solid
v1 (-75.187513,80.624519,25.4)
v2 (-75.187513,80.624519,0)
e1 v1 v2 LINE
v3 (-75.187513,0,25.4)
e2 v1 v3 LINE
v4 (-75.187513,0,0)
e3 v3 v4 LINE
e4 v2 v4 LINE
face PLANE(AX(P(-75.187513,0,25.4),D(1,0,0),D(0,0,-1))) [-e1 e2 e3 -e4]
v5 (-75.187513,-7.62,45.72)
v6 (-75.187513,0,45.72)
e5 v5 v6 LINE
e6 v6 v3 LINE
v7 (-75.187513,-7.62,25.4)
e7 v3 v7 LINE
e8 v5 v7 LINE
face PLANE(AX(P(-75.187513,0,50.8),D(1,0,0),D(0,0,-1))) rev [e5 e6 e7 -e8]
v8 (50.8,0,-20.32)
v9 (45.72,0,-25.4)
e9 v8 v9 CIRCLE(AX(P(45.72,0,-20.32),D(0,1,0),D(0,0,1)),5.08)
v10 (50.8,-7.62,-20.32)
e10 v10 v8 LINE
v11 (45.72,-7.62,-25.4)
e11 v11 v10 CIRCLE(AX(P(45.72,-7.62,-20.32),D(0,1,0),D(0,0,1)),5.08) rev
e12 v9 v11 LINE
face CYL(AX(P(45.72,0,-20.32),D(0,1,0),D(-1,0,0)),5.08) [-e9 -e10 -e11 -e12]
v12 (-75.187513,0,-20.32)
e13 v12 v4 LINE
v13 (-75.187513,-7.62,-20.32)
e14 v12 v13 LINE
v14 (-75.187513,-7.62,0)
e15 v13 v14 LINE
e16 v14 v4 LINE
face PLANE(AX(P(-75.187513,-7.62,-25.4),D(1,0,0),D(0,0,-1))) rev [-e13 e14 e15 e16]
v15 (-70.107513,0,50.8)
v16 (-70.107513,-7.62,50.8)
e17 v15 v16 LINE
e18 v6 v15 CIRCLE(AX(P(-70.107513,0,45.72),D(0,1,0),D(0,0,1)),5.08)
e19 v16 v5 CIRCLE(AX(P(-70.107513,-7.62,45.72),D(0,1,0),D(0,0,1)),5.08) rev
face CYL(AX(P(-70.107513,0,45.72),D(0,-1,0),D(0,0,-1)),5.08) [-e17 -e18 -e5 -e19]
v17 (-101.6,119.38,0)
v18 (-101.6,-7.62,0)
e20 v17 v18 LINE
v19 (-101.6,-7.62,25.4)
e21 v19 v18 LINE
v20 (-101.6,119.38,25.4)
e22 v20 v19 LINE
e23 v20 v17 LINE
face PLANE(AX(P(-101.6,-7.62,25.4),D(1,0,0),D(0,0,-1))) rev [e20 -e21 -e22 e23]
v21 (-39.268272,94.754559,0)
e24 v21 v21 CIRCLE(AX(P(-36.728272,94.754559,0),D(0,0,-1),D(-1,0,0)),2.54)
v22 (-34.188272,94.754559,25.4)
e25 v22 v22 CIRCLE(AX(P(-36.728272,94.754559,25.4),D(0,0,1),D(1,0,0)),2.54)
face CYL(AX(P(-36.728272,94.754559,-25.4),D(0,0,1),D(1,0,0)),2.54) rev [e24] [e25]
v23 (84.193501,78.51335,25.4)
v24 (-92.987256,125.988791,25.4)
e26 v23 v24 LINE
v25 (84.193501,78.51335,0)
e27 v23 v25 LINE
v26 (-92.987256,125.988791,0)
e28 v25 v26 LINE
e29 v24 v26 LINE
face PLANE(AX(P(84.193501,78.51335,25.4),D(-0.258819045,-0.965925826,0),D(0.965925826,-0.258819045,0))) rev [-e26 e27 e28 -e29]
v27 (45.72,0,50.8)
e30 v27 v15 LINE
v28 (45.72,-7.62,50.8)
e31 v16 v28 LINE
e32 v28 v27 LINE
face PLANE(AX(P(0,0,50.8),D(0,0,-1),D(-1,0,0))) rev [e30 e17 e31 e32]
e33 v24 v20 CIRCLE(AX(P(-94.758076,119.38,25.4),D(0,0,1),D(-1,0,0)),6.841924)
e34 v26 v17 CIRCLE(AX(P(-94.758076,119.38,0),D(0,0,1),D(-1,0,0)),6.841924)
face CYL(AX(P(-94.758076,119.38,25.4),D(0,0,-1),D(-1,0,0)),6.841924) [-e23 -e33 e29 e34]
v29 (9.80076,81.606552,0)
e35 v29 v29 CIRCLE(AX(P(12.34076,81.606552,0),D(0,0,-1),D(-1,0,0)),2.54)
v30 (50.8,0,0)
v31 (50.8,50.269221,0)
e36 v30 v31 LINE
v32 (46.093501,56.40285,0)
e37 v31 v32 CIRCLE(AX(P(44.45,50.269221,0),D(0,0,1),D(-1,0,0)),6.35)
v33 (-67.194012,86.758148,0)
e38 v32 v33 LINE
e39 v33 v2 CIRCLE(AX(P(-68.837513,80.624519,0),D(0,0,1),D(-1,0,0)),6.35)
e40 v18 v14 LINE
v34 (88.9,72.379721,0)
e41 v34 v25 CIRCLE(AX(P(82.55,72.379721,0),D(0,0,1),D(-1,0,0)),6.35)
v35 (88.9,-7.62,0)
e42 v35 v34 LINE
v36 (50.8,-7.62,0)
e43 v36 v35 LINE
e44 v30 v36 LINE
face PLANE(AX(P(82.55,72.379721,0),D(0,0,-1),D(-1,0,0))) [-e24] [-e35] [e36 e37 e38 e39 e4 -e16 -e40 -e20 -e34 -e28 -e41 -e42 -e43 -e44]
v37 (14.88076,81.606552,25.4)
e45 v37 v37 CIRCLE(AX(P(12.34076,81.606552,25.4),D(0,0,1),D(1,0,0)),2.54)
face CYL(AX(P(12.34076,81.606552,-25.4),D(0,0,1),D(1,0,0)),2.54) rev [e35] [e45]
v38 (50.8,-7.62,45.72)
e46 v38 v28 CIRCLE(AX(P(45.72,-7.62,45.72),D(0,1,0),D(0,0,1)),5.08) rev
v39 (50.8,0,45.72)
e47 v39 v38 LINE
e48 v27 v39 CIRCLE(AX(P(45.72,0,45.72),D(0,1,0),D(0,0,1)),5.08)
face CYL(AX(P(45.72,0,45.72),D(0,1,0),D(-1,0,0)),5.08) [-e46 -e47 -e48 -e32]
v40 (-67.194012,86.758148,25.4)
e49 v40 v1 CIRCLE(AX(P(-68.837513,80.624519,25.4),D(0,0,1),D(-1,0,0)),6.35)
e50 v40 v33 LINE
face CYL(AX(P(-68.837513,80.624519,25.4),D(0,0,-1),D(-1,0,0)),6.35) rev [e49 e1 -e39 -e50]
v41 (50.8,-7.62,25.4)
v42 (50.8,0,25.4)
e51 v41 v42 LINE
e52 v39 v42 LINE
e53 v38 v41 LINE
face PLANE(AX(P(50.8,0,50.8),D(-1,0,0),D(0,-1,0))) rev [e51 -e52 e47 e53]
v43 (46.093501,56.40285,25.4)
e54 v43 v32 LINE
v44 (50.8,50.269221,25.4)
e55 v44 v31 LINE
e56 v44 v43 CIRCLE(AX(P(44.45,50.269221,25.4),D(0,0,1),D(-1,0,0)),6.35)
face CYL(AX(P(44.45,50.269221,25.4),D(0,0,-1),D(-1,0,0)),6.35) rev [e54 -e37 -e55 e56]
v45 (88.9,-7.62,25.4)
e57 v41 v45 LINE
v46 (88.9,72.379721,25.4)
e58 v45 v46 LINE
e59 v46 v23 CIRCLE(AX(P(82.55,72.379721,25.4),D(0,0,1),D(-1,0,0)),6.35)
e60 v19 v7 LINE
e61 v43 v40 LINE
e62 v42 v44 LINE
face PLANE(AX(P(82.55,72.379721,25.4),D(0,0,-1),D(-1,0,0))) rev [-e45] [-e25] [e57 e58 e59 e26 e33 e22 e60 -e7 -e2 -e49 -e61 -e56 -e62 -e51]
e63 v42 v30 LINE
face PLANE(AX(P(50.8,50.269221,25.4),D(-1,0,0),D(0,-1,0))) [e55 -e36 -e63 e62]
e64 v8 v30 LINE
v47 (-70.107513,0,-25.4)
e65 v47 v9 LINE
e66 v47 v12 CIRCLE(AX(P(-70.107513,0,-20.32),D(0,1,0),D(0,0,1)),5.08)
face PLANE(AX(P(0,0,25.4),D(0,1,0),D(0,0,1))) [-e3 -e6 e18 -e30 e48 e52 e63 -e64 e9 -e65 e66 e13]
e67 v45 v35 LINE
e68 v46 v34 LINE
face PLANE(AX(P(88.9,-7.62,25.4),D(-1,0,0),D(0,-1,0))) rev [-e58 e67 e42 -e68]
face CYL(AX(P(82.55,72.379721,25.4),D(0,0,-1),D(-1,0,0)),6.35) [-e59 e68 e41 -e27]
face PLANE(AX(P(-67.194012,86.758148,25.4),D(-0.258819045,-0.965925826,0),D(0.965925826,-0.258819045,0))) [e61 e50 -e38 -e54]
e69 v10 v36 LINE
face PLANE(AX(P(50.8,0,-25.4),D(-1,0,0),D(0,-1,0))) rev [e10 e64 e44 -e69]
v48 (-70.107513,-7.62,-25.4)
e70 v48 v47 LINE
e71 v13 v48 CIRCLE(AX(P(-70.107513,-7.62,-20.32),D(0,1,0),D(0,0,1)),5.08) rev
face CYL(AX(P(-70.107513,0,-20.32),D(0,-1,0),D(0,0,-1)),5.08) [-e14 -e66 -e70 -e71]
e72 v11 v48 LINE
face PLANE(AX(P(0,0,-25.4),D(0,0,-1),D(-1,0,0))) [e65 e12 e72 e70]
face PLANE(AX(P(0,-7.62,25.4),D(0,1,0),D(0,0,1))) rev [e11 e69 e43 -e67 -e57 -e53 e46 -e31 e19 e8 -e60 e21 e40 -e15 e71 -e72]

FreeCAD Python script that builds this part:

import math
import FreeCAD as App
import Part
import Sketcher
Q = App.Units.Quantity


def edges_at(feature, points):
    """Names of the edges that pass closest to the given points."""
    edges = feature.Shape.Edges
    near = lambda p: min(range(len(edges)), key=lambda i: edges[i].distToShape(Part.Vertex(*p))[0])
    return sorted({f"Edge{near(p) + 1}" for p in points})

doc = App.newDocument("Part")
body = doc.addObject("PartDesign::Body", "Body")

sketch1 = body.newObject("Sketcher::SketchObject", "Sketch")
sketch1.AttachmentSupport = (doc.getObject("XY_Plane"), [""])
sketch1.MapMode = "FlatFace"
sketch1.addGeometry([
    Part.LineSegment(App.Vector(-102, 119, 0), App.Vector(-102, -8, 0)),
    Part.LineSegment(App.Vector(-102, -8, 0), App.Vector(89, -8, 0)),
    Part.LineSegment(App.Vector(89, -8, 0), App.Vector(89, 72, 0)),
    Part.ArcOfCircle(Part.Circle(App.Vector(83, 72, 0), App.Vector(0, 0, 1), 6), math.radians(0), math.radians(75)),
    Part.LineSegment(App.Vector(84, 79, 0), App.Vector(-93, 126, 0)),
    Part.ArcOfCircle(Part.Circle(App.Vector(-95, 119, 0), App.Vector(0, 0, 1), 7), math.radians(75), math.radians(180)),
    Part.LineSegment(App.Vector(51, 0, 0), App.Vector(-75, 0, 0)),
    Part.LineSegment(App.Vector(-75, 0, 0), App.Vector(-75, 81, 0)),
    Part.ArcOfCircle(Part.Circle(App.Vector(-69, 81, 0), App.Vector(0, 0, 1), 6), math.radians(75), math.radians(180)),
    Part.LineSegment(App.Vector(-67, 87, 0), App.Vector(46, 56, 0)),
    Part.ArcOfCircle(Part.Circle(App.Vector(44, 50, 0), App.Vector(0, 0, 1), 6), math.radians(0), math.radians(75)),
    Part.LineSegment(App.Vector(51, 50, 0), App.Vector(51, 0, 0)),
], False)
sketch1.addConstraint([
    Sketcher.Constraint("Coincident", 0, 2, 1, 1),
    Sketcher.Constraint("Coincident", 1, 2, 2, 1),
    Sketcher.Constraint("Tangent", 2, 2, 3, 1),
    Sketcher.Constraint("Tangent", 3, 2, 4, 1),
    Sketcher.Constraint("Tangent", 4, 2, 5, 1),
    Sketcher.Constraint("Tangent", 5, 2, 0, 1),
    Sketcher.Constraint("Coincident", 6, 2, 7, 1),
    Sketcher.Constraint("Tangent", 7, 2, 8, 2),
    Sketcher.Constraint("Tangent", 8, 1, 9, 1),
    Sketcher.Constraint("Tangent", 9, 2, 10, 2),
    Sketcher.Constraint("Tangent", 10, 1, 11, 1),
    Sketcher.Constraint("Coincident", 11, 2, 6, 1),
    Sketcher.Constraint("Vertical", 0),
    Sketcher.Constraint("Horizontal", 1),
    Sketcher.Constraint("Vertical", 2),
    Sketcher.Constraint("Horizontal", 6),
    Sketcher.Constraint("Vertical", 7),
    Sketcher.Constraint("Vertical", 11),
    Sketcher.Constraint("Equal", 3, 8),
    Sketcher.Constraint("Equal", 8, 10),
    Sketcher.Constraint("PointOnObject", 6, 2, -1),
    Sketcher.Constraint("Parallel", 4, 9),
    Sketcher.Constraint("DistanceY", 0, 2, 0, 1, Q("5 in")),
    Sketcher.Constraint("Radius", 3, Q("0.25 in")),
    Sketcher.Constraint("DistanceX", 1, 1, 1, 2, Q("7.5 in")),
    Sketcher.Constraint("DistanceX", 0, 2, -1, 1, Q("4 in")),
    Sketcher.Constraint("DistanceX", -1, 1, 10, 1, Q("2 in")),
    Sketcher.Constraint("Angle", 4, Q("165 deg")),
    Sketcher.Constraint("DistanceY", -1, 1, 5, 3, Q("4.7 in")),
    Sketcher.Constraint("Radius", 5, Q("6.841924 mm")),
    Sketcher.Constraint("DistanceY", 7, 1, 7, 2, Q("80.624519 mm")),
    Sketcher.Constraint("DistanceY", 11, 2, 11, 1, Q("50.269221 mm")),
])
pad1 = body.newObject("PartDesign::Pad", "Pad")
pad1.Profile = sketch1
pad1.Length = Q("1 in")

sketch2 = body.newObject("Sketcher::SketchObject", "Sketch001")
sketch2.AttachmentSupport = (doc.getObject("XY_Plane"), [""])
sketch2.MapMode = "FlatFace"
sketch2.AttachmentOffset = App.Placement(App.Vector(0, 0, 1 * 25.4), App.Rotation())
sketch2.addGeometry([
    Part.LineSegment(App.Vector(-75, 0, 0), App.Vector(-75, -8, 0)),
    Part.LineSegment(App.Vector(-75, -8, 0), App.Vector(51, -8, 0)),
    Part.LineSegment(App.Vector(51, -8, 0), App.Vector(51, 0, 0)),
    Part.LineSegment(App.Vector(51, 0, 0), App.Vector(-75, 0, 0)),
], False)
sketch2.addConstraint([
    Sketcher.Constraint("Coincident", 0, 2, 1, 1),
    Sketcher.Constraint("Coincident", 1, 2, 2, 1),
    Sketcher.Constraint("Coincident", 2, 2, 3, 1),
    Sketcher.Constraint("Coincident", 3, 2, 0, 1),
    Sketcher.Constraint("Vertical", 0),
    Sketcher.Constraint("Horizontal", 1),
    Sketcher.Constraint("Vertical", 2),
    Sketcher.Constraint("Horizontal", 3),
    Sketcher.Constraint("PointOnObject", 2, 2, -1),
    Sketcher.Constraint("DistanceY", 0, 2, 0, 1, Q("0.3 in")),
    Sketcher.Constraint("DistanceX", -1, 1, 1, 2, Q("2 in")),
    Sketcher.Constraint("DistanceX", 1, 1, 1, 2, Q("125.987513 mm")),
])
pad2 = body.newObject("PartDesign::Pad", "Pad001")
pad2.Profile = sketch2
pad2.Length = Q("1 in")
doc.recompute()

fillet = body.newObject("PartDesign::Fillet", "Fillet")
fillet.Base = (pad2, edges_at(pad2, [(-75.188, -3.81, 50.8), (50.8, -3.81, 50.8)]))
fillet.Radius = Q("0.2 in")

sketch3 = body.newObject("Sketcher::SketchObject", "Sketch002")
sketch3.AttachmentSupport = (doc.getObject("XY_Plane"), [""])
sketch3.MapMode = "FlatFace"
sketch3.addGeometry([
    Part.LineSegment(App.Vector(51, 0, 0), App.Vector(51, -8, 0)),
    Part.LineSegment(App.Vector(51, -8, 0), App.Vector(-75, -8, 0)),
    Part.LineSegment(App.Vector(-75, -8, 0), App.Vector(-75, 0, 0)),
    Part.LineSegment(App.Vector(-75, 0, 0), App.Vector(51, 0, 0)),
], False)
sketch3.addConstraint([
    Sketcher.Constraint("Coincident", 0, 2, 1, 1),
    Sketcher.Constraint("Coincident", 1, 2, 2, 1),
    Sketcher.Constraint("Coincident", 2, 2, 3, 1),
    Sketcher.Constraint("Coincident", 3, 2, 0, 1),
    Sketcher.Constraint("Vertical", 0),
    Sketcher.Constraint("Horizontal", 1),
    Sketcher.Constraint("Vertical", 2),
    Sketcher.Constraint("Horizontal", 3),
    Sketcher.Constraint("PointOnObject", 2, 2, -1),
    Sketcher.Constraint("DistanceY", 0, 2, 0, 1, Q("0.3 in")),
    Sketcher.Constraint("DistanceX", -1, 1, 0, 2, Q("2 in")),
    Sketcher.Constraint("DistanceX", 1, 2, 1, 1, Q("125.987513 mm")),
])
pad3 = body.newObject("PartDesign::Pad", "Pad002")
pad3.Profile = sketch3
pad3.Length = Q("1 in")
pad3.Reversed = True
doc.recompute()

fillet2 = body.newObject("PartDesign::Fillet", "Fillet001")
fillet2.Base = (pad3, edges_at(pad3, [(-75.188, -3.81, -25.4), (50.8, -3.81, -25.4)]))
fillet2.Radius = Q("0.2 in")

sketch4 = body.newObject("Sketcher::SketchObject", "Sketch003")
sketch4.AttachmentSupport = (doc.getObject("XY_Plane"), [""])
sketch4.MapMode = "FlatFace"
sketch4.AttachmentOffset = App.Placement(App.Vector(0, 0, 1 * 25.4), App.Rotation())
sketch4.addGeometry([
    Part.Circle(App.Vector(-36.7, 94.8, 0), App.Vector(0, 0, 1), 2.5),
    Part.Circle(App.Vector(12.3, 81.6, 0), App.Vector(0, 0, 1), 2.5),
], False)
sketch4.addConstraint([
    Sketcher.Constraint("Equal", 0, 1),
    Sketcher.Constraint("Diameter", 0, Q("0.2 in")),
    Sketcher.Constraint("DistanceY", -1, 1, 0, 3, Q("94.754559 mm")),
    Sketcher.Constraint("DistanceX", -1, 1, 1, 3, Q("12.34076 mm")),
    Sketcher.Constraint("DistanceY", -1, 1, 1, 3, Q("81.606552 mm")),
    Sketcher.Constraint("DistanceX", 0, 3, 1, 3, Q("49.069032 mm")),
])
pocket1 = body.newObject("PartDesign::Pocket", "Pocket")
pocket1.Profile = sketch4
pocket1.Type = "ThroughAll"

doc.recompute()
